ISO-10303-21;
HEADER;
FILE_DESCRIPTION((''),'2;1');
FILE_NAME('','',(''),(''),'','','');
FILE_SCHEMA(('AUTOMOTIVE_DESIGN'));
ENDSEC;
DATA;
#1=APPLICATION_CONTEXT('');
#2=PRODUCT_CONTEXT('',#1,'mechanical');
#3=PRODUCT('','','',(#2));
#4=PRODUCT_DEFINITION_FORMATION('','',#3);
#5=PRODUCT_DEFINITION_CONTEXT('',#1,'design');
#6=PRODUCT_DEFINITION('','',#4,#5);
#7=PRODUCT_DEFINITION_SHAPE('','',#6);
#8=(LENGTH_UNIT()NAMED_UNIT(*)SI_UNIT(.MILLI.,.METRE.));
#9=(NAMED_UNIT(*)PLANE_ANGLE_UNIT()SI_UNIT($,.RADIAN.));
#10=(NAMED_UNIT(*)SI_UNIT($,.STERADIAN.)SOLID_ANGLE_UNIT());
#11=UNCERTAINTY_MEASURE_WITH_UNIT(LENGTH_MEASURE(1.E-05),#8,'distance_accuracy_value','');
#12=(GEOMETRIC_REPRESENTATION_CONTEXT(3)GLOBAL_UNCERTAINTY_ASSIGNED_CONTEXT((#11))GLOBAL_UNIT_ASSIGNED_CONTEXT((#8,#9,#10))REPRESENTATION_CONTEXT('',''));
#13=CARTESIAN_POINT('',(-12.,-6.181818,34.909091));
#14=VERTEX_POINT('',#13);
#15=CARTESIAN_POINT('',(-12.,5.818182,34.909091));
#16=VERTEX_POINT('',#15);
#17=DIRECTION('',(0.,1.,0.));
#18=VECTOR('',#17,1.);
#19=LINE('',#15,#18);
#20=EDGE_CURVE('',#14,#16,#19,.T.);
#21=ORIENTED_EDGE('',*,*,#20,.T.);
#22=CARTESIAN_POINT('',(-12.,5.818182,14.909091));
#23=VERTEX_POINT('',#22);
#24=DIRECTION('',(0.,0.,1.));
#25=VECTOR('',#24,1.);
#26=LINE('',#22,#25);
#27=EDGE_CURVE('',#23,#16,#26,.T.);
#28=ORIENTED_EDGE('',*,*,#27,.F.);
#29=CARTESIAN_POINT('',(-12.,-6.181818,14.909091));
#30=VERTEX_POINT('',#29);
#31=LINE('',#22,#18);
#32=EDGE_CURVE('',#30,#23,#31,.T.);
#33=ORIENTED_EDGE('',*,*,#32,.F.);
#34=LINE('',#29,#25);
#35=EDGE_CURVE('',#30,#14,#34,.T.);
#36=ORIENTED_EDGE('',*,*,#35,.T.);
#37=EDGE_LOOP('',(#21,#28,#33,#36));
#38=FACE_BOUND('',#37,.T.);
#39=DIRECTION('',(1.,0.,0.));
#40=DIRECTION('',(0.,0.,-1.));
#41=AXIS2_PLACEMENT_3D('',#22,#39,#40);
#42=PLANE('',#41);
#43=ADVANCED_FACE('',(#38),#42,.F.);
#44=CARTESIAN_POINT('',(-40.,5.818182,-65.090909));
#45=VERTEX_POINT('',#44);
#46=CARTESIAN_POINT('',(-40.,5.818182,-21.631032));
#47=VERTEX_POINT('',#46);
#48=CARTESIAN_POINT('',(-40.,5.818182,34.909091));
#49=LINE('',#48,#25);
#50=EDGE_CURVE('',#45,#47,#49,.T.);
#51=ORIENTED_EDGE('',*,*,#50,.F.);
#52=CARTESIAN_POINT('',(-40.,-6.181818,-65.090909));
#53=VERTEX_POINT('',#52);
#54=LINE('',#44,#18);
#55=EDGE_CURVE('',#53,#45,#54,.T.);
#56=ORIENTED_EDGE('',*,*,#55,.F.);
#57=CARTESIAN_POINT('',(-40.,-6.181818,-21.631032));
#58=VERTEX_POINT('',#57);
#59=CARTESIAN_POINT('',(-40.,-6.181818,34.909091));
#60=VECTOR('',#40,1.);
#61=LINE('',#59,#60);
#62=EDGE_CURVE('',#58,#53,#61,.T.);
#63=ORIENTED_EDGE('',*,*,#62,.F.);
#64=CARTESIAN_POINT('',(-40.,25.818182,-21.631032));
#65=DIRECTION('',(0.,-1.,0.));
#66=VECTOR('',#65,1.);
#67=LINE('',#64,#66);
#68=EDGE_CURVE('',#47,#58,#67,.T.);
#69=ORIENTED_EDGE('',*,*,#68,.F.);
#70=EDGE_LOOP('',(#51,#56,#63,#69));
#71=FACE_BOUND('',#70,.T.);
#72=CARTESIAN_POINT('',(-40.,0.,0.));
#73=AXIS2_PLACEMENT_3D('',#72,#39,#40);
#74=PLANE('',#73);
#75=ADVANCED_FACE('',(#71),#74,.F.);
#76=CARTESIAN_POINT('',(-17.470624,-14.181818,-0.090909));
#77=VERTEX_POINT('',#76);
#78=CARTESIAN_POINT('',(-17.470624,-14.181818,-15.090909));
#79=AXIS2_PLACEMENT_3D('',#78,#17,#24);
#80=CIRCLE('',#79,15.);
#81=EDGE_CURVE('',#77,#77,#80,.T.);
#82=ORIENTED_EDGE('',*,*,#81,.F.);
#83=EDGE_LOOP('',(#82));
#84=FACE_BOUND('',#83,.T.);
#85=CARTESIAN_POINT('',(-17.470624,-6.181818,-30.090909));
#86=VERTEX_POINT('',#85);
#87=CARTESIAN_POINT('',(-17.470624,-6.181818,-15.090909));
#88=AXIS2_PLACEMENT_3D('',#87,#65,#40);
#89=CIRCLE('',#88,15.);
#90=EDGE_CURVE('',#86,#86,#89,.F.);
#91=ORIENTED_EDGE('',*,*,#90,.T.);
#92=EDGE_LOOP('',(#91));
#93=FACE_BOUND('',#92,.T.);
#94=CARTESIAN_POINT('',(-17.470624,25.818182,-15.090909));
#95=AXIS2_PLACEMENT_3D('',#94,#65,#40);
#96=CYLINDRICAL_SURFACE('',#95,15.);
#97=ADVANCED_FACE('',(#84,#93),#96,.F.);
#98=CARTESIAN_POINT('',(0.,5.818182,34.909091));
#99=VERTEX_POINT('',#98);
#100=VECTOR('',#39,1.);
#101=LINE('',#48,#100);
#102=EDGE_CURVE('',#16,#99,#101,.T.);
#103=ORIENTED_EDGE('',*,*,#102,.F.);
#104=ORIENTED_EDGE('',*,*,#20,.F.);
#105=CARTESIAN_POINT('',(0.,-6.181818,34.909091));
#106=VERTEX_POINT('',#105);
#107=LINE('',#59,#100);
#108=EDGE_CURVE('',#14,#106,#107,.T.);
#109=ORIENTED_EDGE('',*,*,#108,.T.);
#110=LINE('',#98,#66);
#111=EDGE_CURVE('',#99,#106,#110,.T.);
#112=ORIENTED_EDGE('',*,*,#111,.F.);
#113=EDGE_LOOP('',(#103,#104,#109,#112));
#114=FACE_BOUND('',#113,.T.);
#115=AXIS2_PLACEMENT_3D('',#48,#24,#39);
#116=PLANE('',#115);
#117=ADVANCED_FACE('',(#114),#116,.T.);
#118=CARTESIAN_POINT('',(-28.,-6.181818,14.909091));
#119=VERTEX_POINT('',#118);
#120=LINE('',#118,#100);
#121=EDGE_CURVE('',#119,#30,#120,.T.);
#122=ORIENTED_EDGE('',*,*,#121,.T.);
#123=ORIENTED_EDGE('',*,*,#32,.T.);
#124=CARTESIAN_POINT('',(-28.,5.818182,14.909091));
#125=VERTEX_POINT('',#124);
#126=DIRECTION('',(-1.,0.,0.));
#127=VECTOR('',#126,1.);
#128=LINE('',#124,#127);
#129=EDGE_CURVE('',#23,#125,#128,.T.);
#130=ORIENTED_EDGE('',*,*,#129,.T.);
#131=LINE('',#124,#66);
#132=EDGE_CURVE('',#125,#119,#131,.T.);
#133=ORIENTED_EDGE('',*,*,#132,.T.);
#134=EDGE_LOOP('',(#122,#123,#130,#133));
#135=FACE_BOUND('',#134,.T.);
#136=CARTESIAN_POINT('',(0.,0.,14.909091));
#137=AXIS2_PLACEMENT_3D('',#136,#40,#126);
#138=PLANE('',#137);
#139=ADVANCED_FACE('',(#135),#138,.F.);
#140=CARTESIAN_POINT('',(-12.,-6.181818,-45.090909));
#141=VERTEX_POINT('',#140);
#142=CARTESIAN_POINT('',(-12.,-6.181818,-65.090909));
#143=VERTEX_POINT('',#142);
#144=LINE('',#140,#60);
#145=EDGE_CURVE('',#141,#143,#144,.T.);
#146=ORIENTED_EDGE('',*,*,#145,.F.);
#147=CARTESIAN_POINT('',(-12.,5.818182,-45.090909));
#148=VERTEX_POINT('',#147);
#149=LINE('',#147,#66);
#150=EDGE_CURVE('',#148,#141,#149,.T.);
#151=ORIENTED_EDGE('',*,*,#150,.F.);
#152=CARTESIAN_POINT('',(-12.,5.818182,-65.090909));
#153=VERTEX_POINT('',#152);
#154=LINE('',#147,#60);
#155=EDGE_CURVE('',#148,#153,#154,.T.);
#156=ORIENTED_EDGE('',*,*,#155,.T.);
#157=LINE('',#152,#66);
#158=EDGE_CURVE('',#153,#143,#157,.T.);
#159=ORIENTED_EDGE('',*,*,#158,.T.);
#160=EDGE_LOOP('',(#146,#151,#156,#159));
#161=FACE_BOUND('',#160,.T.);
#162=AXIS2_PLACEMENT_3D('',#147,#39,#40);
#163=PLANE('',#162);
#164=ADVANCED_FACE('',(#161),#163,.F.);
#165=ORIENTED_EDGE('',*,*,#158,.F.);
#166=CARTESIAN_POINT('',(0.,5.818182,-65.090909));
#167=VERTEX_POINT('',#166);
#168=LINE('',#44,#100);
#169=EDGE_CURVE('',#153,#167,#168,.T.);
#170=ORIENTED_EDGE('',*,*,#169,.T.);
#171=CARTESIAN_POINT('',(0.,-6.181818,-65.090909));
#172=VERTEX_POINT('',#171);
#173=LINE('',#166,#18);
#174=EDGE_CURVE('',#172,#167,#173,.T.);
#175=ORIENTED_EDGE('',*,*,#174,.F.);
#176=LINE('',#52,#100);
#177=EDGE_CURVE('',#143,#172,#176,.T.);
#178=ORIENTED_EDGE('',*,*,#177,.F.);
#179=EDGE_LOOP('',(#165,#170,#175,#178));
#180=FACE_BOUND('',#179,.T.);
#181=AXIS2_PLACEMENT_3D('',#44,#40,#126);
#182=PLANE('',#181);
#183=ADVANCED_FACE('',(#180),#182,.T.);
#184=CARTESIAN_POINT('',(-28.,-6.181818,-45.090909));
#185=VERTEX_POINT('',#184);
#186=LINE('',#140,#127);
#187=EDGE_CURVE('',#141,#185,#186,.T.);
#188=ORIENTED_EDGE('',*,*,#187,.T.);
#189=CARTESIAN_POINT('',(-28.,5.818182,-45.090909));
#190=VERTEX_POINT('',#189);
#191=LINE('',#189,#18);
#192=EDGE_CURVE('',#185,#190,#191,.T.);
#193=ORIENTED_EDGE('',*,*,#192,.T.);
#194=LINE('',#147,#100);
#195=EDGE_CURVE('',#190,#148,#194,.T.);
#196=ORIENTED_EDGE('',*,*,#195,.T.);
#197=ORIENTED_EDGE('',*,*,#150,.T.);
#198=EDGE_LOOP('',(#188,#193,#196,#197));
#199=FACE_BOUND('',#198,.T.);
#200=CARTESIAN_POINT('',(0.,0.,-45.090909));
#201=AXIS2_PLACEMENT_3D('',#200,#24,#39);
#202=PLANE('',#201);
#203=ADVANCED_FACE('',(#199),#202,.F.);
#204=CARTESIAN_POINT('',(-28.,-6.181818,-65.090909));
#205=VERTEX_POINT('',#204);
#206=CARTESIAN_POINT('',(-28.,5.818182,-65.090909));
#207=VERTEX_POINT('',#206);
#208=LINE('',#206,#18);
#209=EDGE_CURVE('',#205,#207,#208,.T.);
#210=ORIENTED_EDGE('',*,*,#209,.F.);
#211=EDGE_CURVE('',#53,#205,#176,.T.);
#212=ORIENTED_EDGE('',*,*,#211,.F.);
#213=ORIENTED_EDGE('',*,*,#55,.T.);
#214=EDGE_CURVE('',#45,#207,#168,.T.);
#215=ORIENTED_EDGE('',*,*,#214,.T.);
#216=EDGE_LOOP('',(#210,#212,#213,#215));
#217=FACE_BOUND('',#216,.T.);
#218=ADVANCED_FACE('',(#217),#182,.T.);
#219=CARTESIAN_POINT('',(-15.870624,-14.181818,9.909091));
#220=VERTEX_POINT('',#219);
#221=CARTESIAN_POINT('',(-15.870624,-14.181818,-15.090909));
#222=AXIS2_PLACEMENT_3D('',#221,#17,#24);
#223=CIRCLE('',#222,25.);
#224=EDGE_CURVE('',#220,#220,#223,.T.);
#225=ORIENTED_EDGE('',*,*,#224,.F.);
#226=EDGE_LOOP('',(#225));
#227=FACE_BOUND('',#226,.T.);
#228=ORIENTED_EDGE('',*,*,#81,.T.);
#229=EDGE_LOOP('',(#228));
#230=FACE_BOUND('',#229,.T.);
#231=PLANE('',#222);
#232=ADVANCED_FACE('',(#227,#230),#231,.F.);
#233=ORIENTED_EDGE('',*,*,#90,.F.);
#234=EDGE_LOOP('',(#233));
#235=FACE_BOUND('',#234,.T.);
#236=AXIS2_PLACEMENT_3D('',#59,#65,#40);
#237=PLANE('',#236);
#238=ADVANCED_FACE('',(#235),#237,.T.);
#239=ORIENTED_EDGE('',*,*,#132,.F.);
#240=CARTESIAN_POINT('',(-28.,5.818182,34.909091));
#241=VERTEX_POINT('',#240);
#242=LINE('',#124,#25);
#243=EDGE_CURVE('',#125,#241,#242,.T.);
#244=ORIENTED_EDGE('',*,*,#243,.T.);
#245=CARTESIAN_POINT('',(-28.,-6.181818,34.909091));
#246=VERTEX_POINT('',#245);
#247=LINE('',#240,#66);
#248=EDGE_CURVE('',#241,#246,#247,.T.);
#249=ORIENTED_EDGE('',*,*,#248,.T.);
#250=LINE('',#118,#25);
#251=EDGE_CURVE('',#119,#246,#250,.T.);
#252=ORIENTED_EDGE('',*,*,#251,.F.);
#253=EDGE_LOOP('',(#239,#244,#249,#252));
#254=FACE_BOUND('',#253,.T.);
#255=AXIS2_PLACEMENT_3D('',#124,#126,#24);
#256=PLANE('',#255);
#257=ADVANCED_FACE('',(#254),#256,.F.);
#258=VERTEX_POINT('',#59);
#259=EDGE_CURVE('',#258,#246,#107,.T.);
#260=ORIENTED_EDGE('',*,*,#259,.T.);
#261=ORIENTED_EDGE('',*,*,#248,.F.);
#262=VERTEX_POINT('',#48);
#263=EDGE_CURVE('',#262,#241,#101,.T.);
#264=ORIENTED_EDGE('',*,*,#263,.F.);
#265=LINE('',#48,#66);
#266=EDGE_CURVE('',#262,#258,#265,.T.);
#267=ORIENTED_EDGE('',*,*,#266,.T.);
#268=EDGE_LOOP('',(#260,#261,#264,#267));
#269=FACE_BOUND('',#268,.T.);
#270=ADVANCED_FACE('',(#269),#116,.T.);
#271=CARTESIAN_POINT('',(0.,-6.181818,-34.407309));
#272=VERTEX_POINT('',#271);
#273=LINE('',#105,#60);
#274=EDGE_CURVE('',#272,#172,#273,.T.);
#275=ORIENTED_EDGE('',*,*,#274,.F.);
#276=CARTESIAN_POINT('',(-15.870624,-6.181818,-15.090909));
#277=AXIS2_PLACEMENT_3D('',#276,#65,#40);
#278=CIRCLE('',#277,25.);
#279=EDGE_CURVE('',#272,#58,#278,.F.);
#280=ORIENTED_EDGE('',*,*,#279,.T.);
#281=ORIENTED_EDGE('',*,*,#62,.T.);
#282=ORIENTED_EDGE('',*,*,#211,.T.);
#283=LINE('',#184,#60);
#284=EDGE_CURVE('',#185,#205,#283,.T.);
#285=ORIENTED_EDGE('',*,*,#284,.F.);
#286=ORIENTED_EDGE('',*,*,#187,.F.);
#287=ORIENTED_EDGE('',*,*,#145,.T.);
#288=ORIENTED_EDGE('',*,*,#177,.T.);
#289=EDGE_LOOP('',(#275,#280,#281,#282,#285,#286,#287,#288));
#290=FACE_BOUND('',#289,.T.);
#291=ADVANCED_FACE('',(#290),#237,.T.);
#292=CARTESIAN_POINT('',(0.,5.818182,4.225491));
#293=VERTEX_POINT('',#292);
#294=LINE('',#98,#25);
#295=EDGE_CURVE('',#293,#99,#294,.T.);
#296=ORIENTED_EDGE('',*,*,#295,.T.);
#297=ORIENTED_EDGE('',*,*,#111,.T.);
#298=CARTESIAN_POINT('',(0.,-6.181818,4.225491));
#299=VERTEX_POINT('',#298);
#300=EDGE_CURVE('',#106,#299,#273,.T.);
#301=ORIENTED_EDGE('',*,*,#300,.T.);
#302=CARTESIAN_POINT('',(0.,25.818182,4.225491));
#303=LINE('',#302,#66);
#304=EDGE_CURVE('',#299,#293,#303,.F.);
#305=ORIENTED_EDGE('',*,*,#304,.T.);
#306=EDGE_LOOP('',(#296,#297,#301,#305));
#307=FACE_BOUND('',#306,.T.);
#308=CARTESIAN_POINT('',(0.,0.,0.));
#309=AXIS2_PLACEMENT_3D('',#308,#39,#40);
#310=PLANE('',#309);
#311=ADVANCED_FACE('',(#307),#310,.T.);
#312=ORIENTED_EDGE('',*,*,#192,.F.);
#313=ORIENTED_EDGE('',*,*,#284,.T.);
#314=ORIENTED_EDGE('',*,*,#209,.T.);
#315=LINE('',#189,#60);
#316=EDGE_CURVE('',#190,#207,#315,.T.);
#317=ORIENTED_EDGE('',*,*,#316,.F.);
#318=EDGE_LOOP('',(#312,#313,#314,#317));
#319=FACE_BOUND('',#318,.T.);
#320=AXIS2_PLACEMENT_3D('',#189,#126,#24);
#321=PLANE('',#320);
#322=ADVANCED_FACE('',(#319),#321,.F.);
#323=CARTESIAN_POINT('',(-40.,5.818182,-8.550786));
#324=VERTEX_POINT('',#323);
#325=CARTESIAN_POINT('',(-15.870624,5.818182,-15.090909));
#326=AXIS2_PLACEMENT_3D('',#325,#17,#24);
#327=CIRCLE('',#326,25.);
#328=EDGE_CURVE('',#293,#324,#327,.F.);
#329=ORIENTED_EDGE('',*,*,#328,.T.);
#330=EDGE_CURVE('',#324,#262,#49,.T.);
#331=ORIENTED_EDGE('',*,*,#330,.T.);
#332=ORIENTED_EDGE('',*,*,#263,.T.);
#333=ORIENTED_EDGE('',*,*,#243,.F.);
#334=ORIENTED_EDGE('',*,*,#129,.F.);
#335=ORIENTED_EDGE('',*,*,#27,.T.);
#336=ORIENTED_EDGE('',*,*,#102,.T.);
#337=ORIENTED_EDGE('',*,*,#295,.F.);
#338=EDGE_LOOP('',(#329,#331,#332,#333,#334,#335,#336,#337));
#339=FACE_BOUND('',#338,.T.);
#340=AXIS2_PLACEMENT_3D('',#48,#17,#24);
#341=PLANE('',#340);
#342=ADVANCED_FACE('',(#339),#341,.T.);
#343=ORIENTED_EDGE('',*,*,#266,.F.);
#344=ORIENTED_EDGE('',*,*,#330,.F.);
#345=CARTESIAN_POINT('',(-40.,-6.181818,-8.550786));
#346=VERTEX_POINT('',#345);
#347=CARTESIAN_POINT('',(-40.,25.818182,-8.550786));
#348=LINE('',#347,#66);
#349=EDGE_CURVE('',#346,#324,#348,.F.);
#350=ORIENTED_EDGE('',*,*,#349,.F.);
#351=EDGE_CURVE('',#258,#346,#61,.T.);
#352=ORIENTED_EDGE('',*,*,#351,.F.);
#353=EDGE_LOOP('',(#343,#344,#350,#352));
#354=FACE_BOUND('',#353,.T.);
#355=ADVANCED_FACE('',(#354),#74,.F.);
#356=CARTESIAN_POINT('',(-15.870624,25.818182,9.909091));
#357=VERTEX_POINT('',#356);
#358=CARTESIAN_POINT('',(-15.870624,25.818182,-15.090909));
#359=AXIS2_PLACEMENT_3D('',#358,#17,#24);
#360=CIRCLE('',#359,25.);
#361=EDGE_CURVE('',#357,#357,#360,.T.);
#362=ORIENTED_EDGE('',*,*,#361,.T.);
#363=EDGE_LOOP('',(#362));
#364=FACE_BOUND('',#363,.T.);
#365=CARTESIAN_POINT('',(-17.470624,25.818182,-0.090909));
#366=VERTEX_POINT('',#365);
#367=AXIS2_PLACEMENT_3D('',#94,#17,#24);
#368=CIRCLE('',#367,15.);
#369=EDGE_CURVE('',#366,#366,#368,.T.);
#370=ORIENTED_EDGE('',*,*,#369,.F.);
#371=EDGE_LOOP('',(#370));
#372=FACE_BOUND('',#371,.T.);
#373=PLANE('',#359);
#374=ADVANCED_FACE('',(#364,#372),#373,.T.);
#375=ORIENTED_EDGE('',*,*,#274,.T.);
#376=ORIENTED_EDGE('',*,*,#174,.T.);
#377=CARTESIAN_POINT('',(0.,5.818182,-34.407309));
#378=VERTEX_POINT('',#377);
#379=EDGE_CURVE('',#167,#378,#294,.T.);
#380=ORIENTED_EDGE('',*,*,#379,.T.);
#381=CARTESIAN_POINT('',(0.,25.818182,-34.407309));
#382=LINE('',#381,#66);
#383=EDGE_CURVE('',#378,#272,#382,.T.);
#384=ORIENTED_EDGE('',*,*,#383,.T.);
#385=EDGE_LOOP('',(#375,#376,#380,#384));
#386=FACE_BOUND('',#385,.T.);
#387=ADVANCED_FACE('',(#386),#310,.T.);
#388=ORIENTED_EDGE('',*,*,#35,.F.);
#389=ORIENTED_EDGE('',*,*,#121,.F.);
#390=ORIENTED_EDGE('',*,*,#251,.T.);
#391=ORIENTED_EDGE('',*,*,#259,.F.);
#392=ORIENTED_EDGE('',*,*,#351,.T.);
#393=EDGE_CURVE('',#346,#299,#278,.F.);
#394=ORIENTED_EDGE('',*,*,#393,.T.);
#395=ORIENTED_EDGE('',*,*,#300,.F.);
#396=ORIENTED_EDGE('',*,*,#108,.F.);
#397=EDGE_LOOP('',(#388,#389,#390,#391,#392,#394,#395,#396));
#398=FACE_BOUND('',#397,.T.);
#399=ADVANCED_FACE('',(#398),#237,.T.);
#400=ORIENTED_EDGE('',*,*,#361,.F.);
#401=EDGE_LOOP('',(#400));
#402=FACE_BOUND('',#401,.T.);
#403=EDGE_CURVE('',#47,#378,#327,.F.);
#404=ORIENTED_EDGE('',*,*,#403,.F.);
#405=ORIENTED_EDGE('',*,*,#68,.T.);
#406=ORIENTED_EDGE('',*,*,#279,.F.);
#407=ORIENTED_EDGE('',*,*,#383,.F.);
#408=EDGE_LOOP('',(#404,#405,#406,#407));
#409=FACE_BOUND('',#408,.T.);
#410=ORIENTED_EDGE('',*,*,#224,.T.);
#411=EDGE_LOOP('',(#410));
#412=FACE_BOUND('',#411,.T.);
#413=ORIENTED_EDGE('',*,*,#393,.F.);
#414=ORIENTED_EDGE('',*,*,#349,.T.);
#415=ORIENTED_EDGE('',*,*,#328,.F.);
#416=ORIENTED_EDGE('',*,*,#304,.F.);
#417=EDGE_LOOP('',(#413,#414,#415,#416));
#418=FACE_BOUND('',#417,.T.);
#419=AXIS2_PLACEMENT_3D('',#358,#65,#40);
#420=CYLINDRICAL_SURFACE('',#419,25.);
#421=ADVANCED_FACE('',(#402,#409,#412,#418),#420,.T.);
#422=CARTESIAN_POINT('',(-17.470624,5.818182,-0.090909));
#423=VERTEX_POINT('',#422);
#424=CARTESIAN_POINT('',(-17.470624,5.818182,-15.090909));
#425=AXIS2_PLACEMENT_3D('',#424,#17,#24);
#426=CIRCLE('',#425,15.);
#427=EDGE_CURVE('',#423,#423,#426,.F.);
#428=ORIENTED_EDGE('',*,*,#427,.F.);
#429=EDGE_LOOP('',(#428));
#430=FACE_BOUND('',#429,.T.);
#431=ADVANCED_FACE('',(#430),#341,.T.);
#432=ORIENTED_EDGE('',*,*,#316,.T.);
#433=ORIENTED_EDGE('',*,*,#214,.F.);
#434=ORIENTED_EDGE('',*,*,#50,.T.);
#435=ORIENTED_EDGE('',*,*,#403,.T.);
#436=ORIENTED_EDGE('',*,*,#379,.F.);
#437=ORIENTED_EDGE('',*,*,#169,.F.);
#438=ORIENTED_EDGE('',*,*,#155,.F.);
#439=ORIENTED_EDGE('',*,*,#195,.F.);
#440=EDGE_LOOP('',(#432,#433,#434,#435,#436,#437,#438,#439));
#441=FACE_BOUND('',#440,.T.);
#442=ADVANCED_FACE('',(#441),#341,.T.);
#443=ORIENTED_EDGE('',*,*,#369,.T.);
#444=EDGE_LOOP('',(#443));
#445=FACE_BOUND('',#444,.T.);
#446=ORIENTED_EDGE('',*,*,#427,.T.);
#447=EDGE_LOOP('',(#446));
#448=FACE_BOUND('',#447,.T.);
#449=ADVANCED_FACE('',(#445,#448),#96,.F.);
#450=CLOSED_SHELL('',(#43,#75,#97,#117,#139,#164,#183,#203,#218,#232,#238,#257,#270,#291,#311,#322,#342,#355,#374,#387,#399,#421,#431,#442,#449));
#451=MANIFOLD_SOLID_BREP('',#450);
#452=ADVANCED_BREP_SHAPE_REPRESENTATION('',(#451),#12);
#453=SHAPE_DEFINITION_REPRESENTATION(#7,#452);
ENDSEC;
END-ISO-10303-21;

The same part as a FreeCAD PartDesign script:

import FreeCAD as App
import Part
import Sketcher

V = App.Vector

doc = App.newDocument("Part")
body = doc.addObject("PartDesign::Body", "Body")

# Sketch on YZ plane
sketch1 = doc.addObject("Sketcher::SketchObject", "Sketch")
body.addObject(sketch1)
sketch1.AttachmentSupport = (doc.YZ_Plane, [""])
sketch1.MapMode = "FlatFace"
sketch1.addGeometry([
    Part.LineSegment(V(5.818182, 34.909091, 0), V(-6.181818, 34.909091, 0)),
    Part.LineSegment(V(-6.181818, 34.909091, 0), V(-6.181818, -65.090909, 0)),
    Part.LineSegment(V(-6.181818, -65.090909, 0), V(5.818182, -65.090909, 0)),
    Part.LineSegment(V(5.818182, -65.090909, 0), V(5.818182, 34.909091, 0)),
], False)
sketch1.addConstraint([
    Sketcher.Constraint("Coincident", 0, 2, 1, 1),
    Sketcher.Constraint("Coincident", 1, 2, 2, 1),
    Sketcher.Constraint("Coincident", 2, 2, 3, 1),
    Sketcher.Constraint("Coincident", 3, 2, 0, 1),
    Sketcher.Constraint("Horizontal", 0),
    Sketcher.Constraint("Vertical", 1),
    Sketcher.Constraint("Horizontal", 2),
    Sketcher.Constraint("Vertical", 3),
    Sketcher.Constraint("DistanceX", 0, 2, 0, 1, 12.0),
    Sketcher.Constraint("DistanceY", 1, 2, 1, 1, 100.0),
    Sketcher.Constraint("DistanceX", 0, 2, -1, 1, 6.181818),
    Sketcher.Constraint("DistanceY", -1, 1, 0, 2, 34.909091),
])
pad1 = doc.addObject("PartDesign::Pad", "Pad")
body.addObject(pad1)
pad1.Profile = sketch1
pad1.Length = 40
pad1.Reversed = True

# Sketch on XZ plane
sketch2 = doc.addObject("Sketcher::SketchObject", "Sketch001")
body.addObject(sketch2)
sketch2.AttachmentSupport = (doc.XZ_Plane, [""])
sketch2.MapMode = "FlatFace"
sketch2.AttachmentOffset = App.Placement(V(0, 0, -5.818182), App.Rotation())
sketch2.addGeometry([
    Part.Circle(V(-15.870624, -15.090909, 0), V(0, 0, 1), 25),
    Part.Circle(V(-17.470624, -15.090909, 0), V(0, 0, 1), 15),
], False)
sketch2.addConstraint([
    Sketcher.Constraint("Horizontal", 0, 3, 1, 3),
    Sketcher.Constraint("Diameter", 0, 50.0),
    Sketcher.Constraint("Diameter", 1, 30.0),
    Sketcher.Constraint("DistanceX", 1, 3, 0, 3, 1.6),
    Sketcher.Constraint("DistanceY", 0, 3, -1, 1, 15.090909),
    Sketcher.Constraint("DistanceX", 0, 3, -1, 1, 15.870624),
])
pad2 = doc.addObject("PartDesign::Pad", "Pad001")
body.addObject(pad2)
pad2.Profile = sketch2
pad2.Length = 40
pad2.Midplane = True

# Sketch on XY plane
sketch3 = doc.addObject("Sketcher::SketchObject", "Sketch002")
body.addObject(sketch3)
sketch3.AttachmentSupport = (doc.XY_Plane, [""])
sketch3.MapMode = "FlatFace"
sketch3.AttachmentOffset = App.Placement(V(0, 0, 34.909091), App.Rotation())
sketch3.addGeometry([
    Part.LineSegment(V(-28, 5.818182, 0), V(-28, -6.181818, 0)),
    Part.LineSegment(V(-28, -6.181818, 0), V(-12, -6.181818, 0)),
    Part.LineSegment(V(-12, -6.181818, 0), V(-12, 5.818182, 0)),
    Part.LineSegment(V(-12, 5.818182, 0), V(-28, 5.818182, 0)),
], False)
sketch3.addConstraint([
    Sketcher.Constraint("Coincident", 0, 2, 1, 1),
    Sketcher.Constraint("Coincident", 1, 2, 2, 1),
    Sketcher.Constraint("Coincident", 2, 2, 3, 1),
    Sketcher.Constraint("Coincident", 3, 2, 0, 1),
    Sketcher.Constraint("Vertical", 0),
    Sketcher.Constraint("Horizontal", 1),
    Sketcher.Constraint("Vertical", 2),
    Sketcher.Constraint("Horizontal", 3),
    Sketcher.Constraint("DistanceX", 1, 1, 1, 2, 16.0),
    Sketcher.Constraint("DistanceY", 0, 2, 0, 1, 12.0),
    Sketcher.Constraint("DistanceX", 0, 2, -1, 1, 28.0),
    Sketcher.Constraint("DistanceY", 0, 2, -1, 1, 6.181818),
])
pocket1 = doc.addObject("PartDesign::Pocket", "Pocket")
body.addObject(pocket1)
pocket1.Profile = sketch3
pocket1.Length = 20

# Sketch on XY plane
sketch4 = doc.addObject("Sketcher::SketchObject", "Sketch003")
body.addObject(sketch4)
sketch4.AttachmentSupport = (doc.XY_Plane, [""])
sketch4.MapMode = "FlatFace"
sketch4.AttachmentOffset = App.Placement(V(0, 0, -65.090909), App.Rotation())
sketch4.addGeometry([
    Part.LineSegment(V(-12, 5.818182, 0), V(-12, -6.181818, 0)),
    Part.LineSegment(V(-12, -6.181818, 0), V(-28, -6.181818, 0)),
    Part.LineSegment(V(-28, -6.181818, 0), V(-28, 5.818182, 0)),
    Part.LineSegment(V(-28, 5.818182, 0), V(-12, 5.818182, 0)),
], False)
sketch4.addConstraint([
    Sketcher.Constraint("Coincident", 0, 2, 1, 1),
    Sketcher.Constraint("Coincident", 1, 2, 2, 1),
    Sketcher.Constraint("Coincident", 2, 2, 3, 1),
    Sketcher.Constraint("Coincident", 3, 2, 0, 1),
    Sketcher.Constraint("Vertical", 0),
    Sketcher.Constraint("Horizontal", 1),
    Sketcher.Constraint("Vertical", 2),
    Sketcher.Constraint("Horizontal", 3),
    Sketcher.Constraint("DistanceX", 1, 2, 1, 1, 16.0),
    Sketcher.Constraint("DistanceY", 0, 2, 0, 1, 12.0),
    Sketcher.Constraint("DistanceX", 0, 2, -1, 1, 12.0),
    Sketcher.Constraint("DistanceY", 0, 2, -1, 1, 6.181818),
])
pocket2 = doc.addObject("PartDesign::Pocket", "Pocket001")
body.addObject(pocket2)
pocket2.Profile = sketch4
pocket2.Length = 20
pocket2.Reversed = True

doc.recompute()
